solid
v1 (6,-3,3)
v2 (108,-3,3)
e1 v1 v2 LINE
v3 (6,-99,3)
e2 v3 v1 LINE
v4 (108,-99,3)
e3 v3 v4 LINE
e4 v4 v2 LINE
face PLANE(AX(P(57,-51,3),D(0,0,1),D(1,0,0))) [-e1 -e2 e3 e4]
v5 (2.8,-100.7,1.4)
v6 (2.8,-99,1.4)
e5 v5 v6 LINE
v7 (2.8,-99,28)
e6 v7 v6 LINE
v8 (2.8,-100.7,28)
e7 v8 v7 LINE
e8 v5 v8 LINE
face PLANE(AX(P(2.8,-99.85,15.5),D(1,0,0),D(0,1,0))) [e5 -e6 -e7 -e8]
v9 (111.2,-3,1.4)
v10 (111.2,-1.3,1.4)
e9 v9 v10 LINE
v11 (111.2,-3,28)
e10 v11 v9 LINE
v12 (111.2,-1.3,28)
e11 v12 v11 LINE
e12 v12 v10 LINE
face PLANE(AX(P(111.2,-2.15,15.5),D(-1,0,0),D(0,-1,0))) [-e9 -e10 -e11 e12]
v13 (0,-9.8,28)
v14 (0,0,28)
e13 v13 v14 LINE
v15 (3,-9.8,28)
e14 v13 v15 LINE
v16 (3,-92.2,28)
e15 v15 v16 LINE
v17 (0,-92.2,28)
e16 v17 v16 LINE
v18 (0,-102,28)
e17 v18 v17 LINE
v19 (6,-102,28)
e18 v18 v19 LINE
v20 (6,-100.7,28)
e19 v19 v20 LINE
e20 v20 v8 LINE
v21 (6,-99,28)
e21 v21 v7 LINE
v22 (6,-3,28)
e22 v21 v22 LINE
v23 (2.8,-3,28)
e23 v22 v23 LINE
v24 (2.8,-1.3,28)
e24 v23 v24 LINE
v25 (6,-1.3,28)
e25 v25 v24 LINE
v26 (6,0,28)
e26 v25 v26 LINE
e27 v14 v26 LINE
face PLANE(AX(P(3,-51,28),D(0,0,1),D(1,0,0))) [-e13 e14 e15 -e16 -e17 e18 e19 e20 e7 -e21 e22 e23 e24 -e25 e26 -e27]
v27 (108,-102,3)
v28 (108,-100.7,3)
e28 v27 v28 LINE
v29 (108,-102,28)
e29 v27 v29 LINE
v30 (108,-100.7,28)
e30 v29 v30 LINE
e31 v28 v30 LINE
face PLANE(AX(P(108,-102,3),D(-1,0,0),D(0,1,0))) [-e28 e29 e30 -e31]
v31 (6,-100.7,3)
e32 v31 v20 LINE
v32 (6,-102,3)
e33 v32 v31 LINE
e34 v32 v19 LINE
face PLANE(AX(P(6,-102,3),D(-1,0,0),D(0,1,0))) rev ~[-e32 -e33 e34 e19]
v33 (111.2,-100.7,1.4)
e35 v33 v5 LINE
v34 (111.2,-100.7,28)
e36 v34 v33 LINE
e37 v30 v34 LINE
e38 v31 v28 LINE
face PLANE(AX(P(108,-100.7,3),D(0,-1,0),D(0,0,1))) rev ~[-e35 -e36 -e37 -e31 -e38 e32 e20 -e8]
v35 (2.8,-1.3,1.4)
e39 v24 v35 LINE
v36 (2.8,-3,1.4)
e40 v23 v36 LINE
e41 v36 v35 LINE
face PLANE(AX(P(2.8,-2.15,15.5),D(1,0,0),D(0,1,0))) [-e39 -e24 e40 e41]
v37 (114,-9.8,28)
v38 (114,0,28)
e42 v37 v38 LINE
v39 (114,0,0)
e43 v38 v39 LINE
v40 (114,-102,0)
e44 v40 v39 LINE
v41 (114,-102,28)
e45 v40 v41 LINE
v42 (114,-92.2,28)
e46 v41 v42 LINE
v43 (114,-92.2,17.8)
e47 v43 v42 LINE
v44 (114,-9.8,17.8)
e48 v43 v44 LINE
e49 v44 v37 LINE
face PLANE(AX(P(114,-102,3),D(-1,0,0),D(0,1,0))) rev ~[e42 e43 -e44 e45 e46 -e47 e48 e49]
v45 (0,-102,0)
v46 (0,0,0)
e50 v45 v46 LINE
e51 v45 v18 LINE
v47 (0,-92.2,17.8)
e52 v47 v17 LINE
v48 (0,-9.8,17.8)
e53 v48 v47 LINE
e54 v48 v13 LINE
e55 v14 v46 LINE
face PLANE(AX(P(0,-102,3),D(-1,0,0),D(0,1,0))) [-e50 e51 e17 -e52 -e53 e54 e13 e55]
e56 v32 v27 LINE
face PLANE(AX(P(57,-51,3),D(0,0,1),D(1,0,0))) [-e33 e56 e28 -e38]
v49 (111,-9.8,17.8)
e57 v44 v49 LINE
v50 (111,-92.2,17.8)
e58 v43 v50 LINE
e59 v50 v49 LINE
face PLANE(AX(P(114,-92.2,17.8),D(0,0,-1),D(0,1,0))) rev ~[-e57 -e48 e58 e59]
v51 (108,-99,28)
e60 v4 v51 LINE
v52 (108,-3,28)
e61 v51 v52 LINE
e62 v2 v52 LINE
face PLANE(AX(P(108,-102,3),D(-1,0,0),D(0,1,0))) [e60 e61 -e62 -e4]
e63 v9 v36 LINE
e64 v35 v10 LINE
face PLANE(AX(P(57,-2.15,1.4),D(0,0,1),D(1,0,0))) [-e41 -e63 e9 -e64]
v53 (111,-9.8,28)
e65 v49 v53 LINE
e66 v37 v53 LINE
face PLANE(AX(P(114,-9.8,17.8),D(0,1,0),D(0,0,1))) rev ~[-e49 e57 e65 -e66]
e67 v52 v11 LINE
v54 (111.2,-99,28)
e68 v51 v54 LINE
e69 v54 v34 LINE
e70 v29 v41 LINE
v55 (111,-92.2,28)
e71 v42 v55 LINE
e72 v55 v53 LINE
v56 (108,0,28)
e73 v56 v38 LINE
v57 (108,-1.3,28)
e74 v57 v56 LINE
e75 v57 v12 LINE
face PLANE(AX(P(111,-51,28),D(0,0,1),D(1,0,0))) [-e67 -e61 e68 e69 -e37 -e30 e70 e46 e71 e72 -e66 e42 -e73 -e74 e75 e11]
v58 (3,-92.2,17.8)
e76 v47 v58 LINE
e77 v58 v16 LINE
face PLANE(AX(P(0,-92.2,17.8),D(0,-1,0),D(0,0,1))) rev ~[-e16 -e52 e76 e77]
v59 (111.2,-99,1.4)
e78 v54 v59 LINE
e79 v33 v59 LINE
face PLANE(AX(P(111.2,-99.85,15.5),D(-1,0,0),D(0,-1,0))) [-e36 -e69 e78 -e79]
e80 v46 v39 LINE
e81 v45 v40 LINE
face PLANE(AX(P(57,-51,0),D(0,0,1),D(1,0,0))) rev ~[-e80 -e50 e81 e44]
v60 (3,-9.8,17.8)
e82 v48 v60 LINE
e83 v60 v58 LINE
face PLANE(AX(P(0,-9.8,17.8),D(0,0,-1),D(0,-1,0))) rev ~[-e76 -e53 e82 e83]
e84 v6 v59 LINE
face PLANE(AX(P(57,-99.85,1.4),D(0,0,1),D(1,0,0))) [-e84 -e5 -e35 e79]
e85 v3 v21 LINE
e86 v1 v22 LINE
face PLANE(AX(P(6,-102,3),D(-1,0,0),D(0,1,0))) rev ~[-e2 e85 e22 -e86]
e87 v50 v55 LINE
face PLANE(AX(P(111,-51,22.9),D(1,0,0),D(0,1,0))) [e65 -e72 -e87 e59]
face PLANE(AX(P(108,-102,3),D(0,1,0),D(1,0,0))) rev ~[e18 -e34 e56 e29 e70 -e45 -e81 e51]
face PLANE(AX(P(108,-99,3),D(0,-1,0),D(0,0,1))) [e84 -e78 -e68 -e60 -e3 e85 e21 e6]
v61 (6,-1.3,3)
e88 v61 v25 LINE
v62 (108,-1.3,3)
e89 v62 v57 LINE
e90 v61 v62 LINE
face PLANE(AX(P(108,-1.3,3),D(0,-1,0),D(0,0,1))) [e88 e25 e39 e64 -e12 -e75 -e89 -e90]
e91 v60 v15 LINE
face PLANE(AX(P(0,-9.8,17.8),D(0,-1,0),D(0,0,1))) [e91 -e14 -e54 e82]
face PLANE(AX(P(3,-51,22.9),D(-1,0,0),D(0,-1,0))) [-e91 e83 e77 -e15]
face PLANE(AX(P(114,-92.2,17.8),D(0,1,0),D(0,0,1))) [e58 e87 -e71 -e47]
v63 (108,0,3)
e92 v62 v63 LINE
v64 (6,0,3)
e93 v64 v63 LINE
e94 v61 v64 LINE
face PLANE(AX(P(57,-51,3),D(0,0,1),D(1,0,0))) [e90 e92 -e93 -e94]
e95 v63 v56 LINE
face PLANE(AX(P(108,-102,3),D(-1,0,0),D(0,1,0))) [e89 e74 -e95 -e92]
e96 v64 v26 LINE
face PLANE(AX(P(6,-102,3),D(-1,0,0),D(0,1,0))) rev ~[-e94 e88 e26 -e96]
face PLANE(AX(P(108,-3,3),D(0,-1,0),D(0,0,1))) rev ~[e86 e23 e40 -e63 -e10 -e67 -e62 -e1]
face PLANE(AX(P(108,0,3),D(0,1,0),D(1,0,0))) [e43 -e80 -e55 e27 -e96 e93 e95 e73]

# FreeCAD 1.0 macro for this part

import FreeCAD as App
import Part
import Sketcher

V = App.Vector


def add_polygon(sketch, points):
    """Adds a closed chain of lines whose ends are joined by coincident constraints."""
    first, n = sketch.GeometryCount, len(points)
    for a, b in zip(points, points[1:] + points[:1]):
        sketch.addGeometry(Part.LineSegment(App.Vector(*a, 0), App.Vector(*b, 0)), False)
    for i in range(n):
        sketch.addConstraint(Sketcher.Constraint("Coincident", first + i, 2, first + (i + 1) % n, 1))

doc = App.newDocument("Part")
body = doc.addObject("PartDesign::Body", "Body")

# Sketch on XY plane
sketch1 = body.newObject("Sketcher::SketchObject", "Sketch")
sketch1.AttachmentSupport = (doc.getObject("XY_Plane"), [""])
sketch1.MapMode = "FlatFace"
add_polygon(sketch1, [(0, 0), (0, -102), (114, -102), (114, 0)])  # lines 0-3
sketch1.addConstraint(Sketcher.Constraint("Vertical", 0))
sketch1.addConstraint(Sketcher.Constraint("Horizontal", 1))
sketch1.addConstraint(Sketcher.Constraint("Vertical", 2))
sketch1.addConstraint(Sketcher.Constraint("Horizontal", 3))
sketch1.addConstraint(Sketcher.Constraint("Coincident", 3, 2, -1, 1))
sketch1.addConstraint(Sketcher.Constraint("DistanceX", 1, 1, 1, 2, 114.0))
sketch1.addConstraint(Sketcher.Constraint("DistanceY", 0, 2, 0, 1, 102.0))
pad1 = body.newObject("PartDesign::Pad", "Pad")
pad1.Profile = sketch1
pad1.Length = 3

# Sketch on XY plane
sketch2 = body.newObject("Sketcher::SketchObject", "Sketch001")
sketch2.AttachmentSupport = (doc.getObject("XY_Plane"), [""])
sketch2.MapMode = "FlatFace"
sketch2.AttachmentOffset = App.Placement(V(0, 0, 3), App.Rotation())
add_polygon(sketch2, [(0, 0), (0, -102), (6, -102), (6, 0)])  # lines 0-3
sketch2.addConstraint(Sketcher.Constraint("Vertical", 0))
sketch2.addConstraint(Sketcher.Constraint("Horizontal", 1))
sketch2.addConstraint(Sketcher.Constraint("Vertical", 2))
sketch2.addConstraint(Sketcher.Constraint("Horizontal", 3))
sketch2.addConstraint(Sketcher.Constraint("Coincident", 3, 2, -1, 1))
sketch2.addConstraint(Sketcher.Constraint("DistanceX", 1, 1, 1, 2, 6.0))
sketch2.addConstraint(Sketcher.Constraint("DistanceY", 0, 2, 0, 1, 102.0))
pad2 = body.newObject("PartDesign::Pad", "Pad001")
pad2.Profile = sketch2
pad2.Length = 25

# Sketch on XY plane
sketch3 = body.newObject("Sketcher::SketchObject", "Sketch002")
sketch3.AttachmentSupport = (doc.getObject("XY_Plane"), [""])
sketch3.MapMode = "FlatFace"
sketch3.AttachmentOffset = App.Placement(V(0, 0, 3), App.Rotation())
add_polygon(sketch3, [(108, 0), (108, -102), (114, -102), (114, 0)])  # lines 0-3
sketch3.addConstraint(Sketcher.Constraint("Vertical", 0))
sketch3.addConstraint(Sketcher.Constraint("Horizontal", 1))
sketch3.addConstraint(Sketcher.Constraint("Vertical", 2))
sketch3.addConstraint(Sketcher.Constraint("Horizontal", 3))
sketch3.addConstraint(Sketcher.Constraint("PointOnObject", 2, 2, -1))
sketch3.addConstraint(Sketcher.Constraint("DistanceX", 1, 1, 1, 2, 6.0))
sketch3.addConstraint(Sketcher.Constraint("DistanceY", 0, 2, 0, 1, 102.0))
sketch3.addConstraint(Sketcher.Constraint("DistanceX", -1, 1, 0, 2, 108.0))
pad3 = body.newObject("PartDesign::Pad", "Pad002")
pad3.Profile = sketch3
pad3.Length = 25

# Sketch on YZ plane
sketch4 = body.newObject("Sketcher::SketchObject", "Sketch003")
sketch4.AttachmentSupport = (doc.getObject("YZ_Plane"), [""])
sketch4.MapMode = "FlatFace"
sketch4.AttachmentOffset = App.Placement(V(0, 0, 114), App.Rotation())
add_polygon(sketch4, [(-92, 28), (-92, 18), (-10, 18), (-10, 28)])  # lines 0-3
sketch4.addConstraint(Sketcher.Constraint("Vertical", 0))
sketch4.addConstraint(Sketcher.Constraint("Horizontal", 1))
sketch4.addConstraint(Sketcher.Constraint("Vertical", 2))
sketch4.addConstraint(Sketcher.Constraint("Horizontal", 3))
sketch4.addConstraint(Sketcher.Constraint("DistanceX", 1, 1, 1, 2, 82.4))
sketch4.addConstraint(Sketcher.Constraint("DistanceY", 0, 2, 0, 1, 10.2))
sketch4.addConstraint(Sketcher.Constraint("DistanceY", -1, 1, 2, 2, 28.0))
sketch4.addConstraint(Sketcher.Constraint("DistanceX", 0, 2, -1, 1, 92.2))
pocket1 = body.newObject("PartDesign::Pocket", "Pocket")
pocket1.Profile = sketch4
pocket1.Length = 3

# Sketch on YZ plane
sketch5 = body.newObject("Sketcher::SketchObject", "Sketch004")
sketch5.AttachmentSupport = (doc.getObject("YZ_Plane"), [""])
sketch5.MapMode = "FlatFace"
add_polygon(sketch5, [(-10, 28), (-10, 18), (-92, 18), (-92, 28)])  # lines 0-3
sketch5.addConstraint(Sketcher.Constraint("Vertical", 0))
sketch5.addConstraint(Sketcher.Constraint("Horizontal", 1))
sketch5.addConstraint(Sketcher.Constraint("Vertical", 2))
sketch5.addConstraint(Sketcher.Constraint("Horizontal", 3))
sketch5.addConstraint(Sketcher.Constraint("DistanceX", 1, 2, 1, 1, 82.4))
sketch5.addConstraint(Sketcher.Constraint("DistanceY", 0, 2, 0, 1, 10.2))
sketch5.addConstraint(Sketcher.Constraint("DistanceY", -1, 1, 2, 2, 28.0))
sketch5.addConstraint(Sketcher.Constraint("DistanceX", 0, 2, -1, 1, 9.8))
pocket2 = body.newObject("PartDesign::Pocket", "Pocket001")
pocket2.Profile = sketch5
pocket2.Length = 3
pocket2.Reversed = True

# Sketch on YZ plane
sketch6 = body.newObject("Sketcher::SketchObject", "Sketch005")
sketch6.AttachmentSupport = (doc.getObject("YZ_Plane"), [""])
sketch6.MapMode = "FlatFace"
sketch6.AttachmentOffset = App.Placement(V(0, 0, 6), App.Rotation())
add_polygon(sketch6, [(-100.7, 28), (-100.7, 3), (-99, 3), (-99, 28)])  # lines 0-3
sketch6.addConstraint(Sketcher.Constraint("Vertical", 0))
sketch6.addConstraint(Sketcher.Constraint("Horizontal", 1))
sketch6.addConstraint(Sketcher.Constraint("Vertical", 2))
sketch6.addConstraint(Sketcher.Constraint("Horizontal", 3))
sketch6.addConstraint(Sketcher.Constraint("DistanceY", 0, 2, 0, 1, 25.0))
sketch6.addConstraint(Sketcher.Constraint("DistanceX", 1, 1, 1, 2, 1.7))
sketch6.addConstraint(Sketcher.Constraint("DistanceY", -1, 1, 0, 2, 3.0))
sketch6.addConstraint(Sketcher.Constraint("DistanceX", 1, 2, -1, 1, 99.0))
pocket3 = body.newObject("PartDesign::Pocket", "Pocket002")
pocket3.Profile = sketch6
pocket3.Length = 3.2

# Sketch on XY plane
sketch7 = body.newObject("Sketcher::SketchObject", "Sketch006")
sketch7.AttachmentSupport = (doc.getObject("XY_Plane"), [""])
sketch7.MapMode = "FlatFace"
sketch7.AttachmentOffset = App.Placement(V(0, 0, 3), App.Rotation())
add_polygon(sketch7, [(6, -99), (6, -100.7), (108, -100.7), (108, -99)])  # lines 0-3
sketch7.addConstraint(Sketcher.Constraint("Vertical", 0))
sketch7.addConstraint(Sketcher.Constraint("Horizontal", 1))
sketch7.addConstraint(Sketcher.Constraint("Vertical", 2))
sketch7.addConstraint(Sketcher.Constraint("Horizontal", 3))
sketch7.addConstraint(Sketcher.Constraint("DistanceX", 1, 1, 1, 2, 102.0))
sketch7.addConstraint(Sketcher.Constraint("DistanceY", 0, 2, 0, 1, 1.7))
sketch7.addConstraint(Sketcher.Constraint("DistanceX", -1, 1, 0, 2, 6.0))
sketch7.addConstraint(Sketcher.Constraint("DistanceY", 2, 2, -1, 1, 99.0))
pocket4 = body.newObject("PartDesign::Pocket", "Pocket003")
pocket4.Profile = sketch7
pocket4.Length = 1.6

# Sketch on XY plane
sketch8 = body.newObject("Sketcher::SketchObject", "Sketch007")
sketch8.AttachmentSupport = (doc.getObject("XY_Plane"), [""])
sketch8.MapMode = "FlatFace"
sketch8.AttachmentOffset = App.Placement(V(0, 0, 3), App.Rotation())
add_polygon(sketch8, [(2.8, -99), (2.8, -100.7), (6, -100.7), (6, -99)])  # lines 0-3
sketch8.addConstraint(Sketcher.Constraint("Vertical", 0))
sketch8.addConstraint(Sketcher.Constraint("Horizontal", 1))
sketch8.addConstraint(Sketcher.Constraint("Vertical", 2))
sketch8.addConstraint(Sketcher.Constraint("Horizontal", 3))
sketch8.addConstraint(Sketcher.Constraint("DistanceX", 1, 1, 1, 2, 3.2))
sketch8.addConstraint(Sketcher.Constraint("DistanceY", 0, 2, 0, 1, 1.7))
sketch8.addConstraint(Sketcher.Constraint("DistanceX", -1, 1, 1, 2, 6.0))
sketch8.addConstraint(Sketcher.Constraint("DistanceY", 2, 2, -1, 1, 99.0))
pocket5 = body.newObject("PartDesign::Pocket", "Pocket004")
pocket5.Profile = sketch8
pocket5.Length = 1.6

# Sketch on YZ plane
sketch9 = body.newObject("Sketcher::SketchObject", "Sketch008")
sketch9.AttachmentSupport = (doc.getObject("YZ_Plane"), [""])
sketch9.MapMode = "FlatFace"
sketch9.AttachmentOffset = App.Placement(V(0, 0, 108), App.Rotation())
add_polygon(sketch9, [(-99, 28), (-99, 3), (-100.7, 3), (-100.7, 28)])  # lines 0-3
sketch9.addConstraint(Sketcher.Constraint("Vertical", 0))
sketch9.addConstraint(Sketcher.Constraint("Horizontal", 1))
sketch9.addConstraint(Sketcher.Constraint("Vertical", 2))
sketch9.addConstraint(Sketcher.Constraint("Horizontal", 3))
sketch9.addConstraint(Sketcher.Constraint("DistanceY", 0, 2, 0, 1, 25.0))
sketch9.addConstraint(Sketcher.Constraint("DistanceX", 1, 2, 1, 1, 1.7))
sketch9.addConstraint(Sketcher.Constraint("DistanceX", 0, 2, -1, 1, 99.0))
sketch9.addConstraint(Sketcher.Constraint("DistanceY", -1, 1, 0, 2, 3.0))
pocket6 = body.newObject("PartDesign::Pocket", "Pocket005")
pocket6.Profile = sketch9
pocket6.Length = 3.2
pocket6.Reversed = True

# Sketch on XY plane
sketch10 = body.newObject("Sketcher::SketchObject", "Sketch009")
sketch10.AttachmentSupport = (doc.getObject("XY_Plane"), [""])
sketch10.MapMode = "FlatFace"
sketch10.AttachmentOffset = App.Placement(V(0, 0, 3), App.Rotation())
add_polygon(sketch10, [(108, -99), (108, -100.7), (111.2, -100.7), (111.2, -99)])  # lines 0-3
sketch10.addConstraint(Sketcher.Constraint("Vertical", 0))
sketch10.addConstraint(Sketcher.Constraint("Horizontal", 1))
sketch10.addConstraint(Sketcher.Constraint("Vertical", 2))
sketch10.addConstraint(Sketcher.Constraint("Horizontal", 3))
sketch10.addConstraint(Sketcher.Constraint("DistanceX", 1, 1, 1, 2, 3.2))
sketch10.addConstraint(Sketcher.Constraint("DistanceY", 0, 2, 0, 1, 1.7))
sketch10.addConstraint(Sketcher.Constraint("DistanceX", -1, 1, 0, 2, 108.0))
sketch10.addConstraint(Sketcher.Constraint("DistanceY", 2, 2, -1, 1, 99.0))
pocket7 = body.newObject("PartDesign::Pocket", "Pocket006")
pocket7.Profile = sketch10
pocket7.Length = 1.6

# Sketch on YZ plane
sketch11 = body.newObject("Sketcher::SketchObject", "Sketch010")
sketch11.AttachmentSupport = (doc.getObject("YZ_Plane"), [""])
sketch11.MapMode = "FlatFace"
sketch11.AttachmentOffset = App.Placement(V(0, 0, 6), App.Rotation())
add_polygon(sketch11, [(-3, 28), (-3, 3), (-1.3, 3), (-1.3, 28)])  # lines 0-3
sketch11.addConstraint(Sketcher.Constraint("Vertical", 0))
sketch11.addConstraint(Sketcher.Constraint("Horizontal", 1))
sketch11.addConstraint(Sketcher.Constraint("Vertical", 2))
sketch11.addConstraint(Sketcher.Constraint("Horizontal", 3))
sketch11.addConstraint(Sketcher.Constraint("DistanceY", 0, 2, 0, 1, 25.0))
sketch11.addConstraint(Sketcher.Constraint("DistanceX", 1, 1, 1, 2, 1.7))
sketch11.addConstraint(Sketcher.Constraint("DistanceX", 0, 2, -1, 1, 3.0))
sketch11.addConstraint(Sketcher.Constraint("DistanceY", -1, 1, 0, 2, 3.0))
pocket8 = body.newObject("PartDesign::Pocket", "Pocket007")
pocket8.Profile = sketch11
pocket8.Length = 3.2

# Sketch on XY plane
sketch12 = body.newObject("Sketcher::SketchObject", "Sketch011")
sketch12.AttachmentSupport = (doc.getObject("XY_Plane"), [""])
sketch12.MapMode = "FlatFace"
sketch12.AttachmentOffset = App.Placement(V(0, 0, 3), App.Rotation())
add_polygon(sketch12, [(6, -1.3), (6, -3), (108, -3), (108, -1.3)])  # lines 0-3
sketch12.addConstraint(Sketcher.Constraint("Vertical", 0))
sketch12.addConstraint(Sketcher.Constraint("Horizontal", 1))
sketch12.addConstraint(Sketcher.Constraint("Vertical", 2))
sketch12.addConstraint(Sketcher.Constraint("Horizontal", 3))
sketch12.addConstraint(Sketcher.Constraint("DistanceX", 1, 1, 1, 2, 102.0))
sketch12.addConstraint(Sketcher.Constraint("DistanceY", 0, 2, 0, 1, 1.7))
sketch12.addConstraint(Sketcher.Constraint("DistanceX", -1, 1, 0, 2, 6.0))
sketch12.addConstraint(Sketcher.Constraint("DistanceY", 0, 2, -1, 1, 3.0))
pocket9 = body.newObject("PartDesign::Pocket", "Pocket008")
pocket9.Profile = sketch12
pocket9.Length = 1.6

# Sketch on XY plane
sketch13 = body.newObject("Sketcher::SketchObject", "Sketch012")
sketch13.AttachmentSupport = (doc.getObject("XY_Plane"), [""])
sketch13.MapMode = "FlatFace"
sketch13.AttachmentOffset = App.Placement(V(0, 0, 3), App.Rotation())
add_polygon(sketch13, [(2.8, -1.3), (2.8, -3), (6, -3), (6, -1.3)])  # lines 0-3
sketch13.addConstraint(Sketcher.Constraint("Vertical", 0))
sketch13.addConstraint(Sketcher.Constraint("Horizontal", 1))
sketch13.addConstraint(Sketcher.Constraint("Vertical", 2))
sketch13.addConstraint(Sketcher.Constraint("Horizontal", 3))
sketch13.addConstraint(Sketcher.Constraint("DistanceX", 1, 1, 1, 2, 3.2))
sketch13.addConstraint(Sketcher.Constraint("DistanceY", 0, 2, 0, 1, 1.7))
sketch13.addConstraint(Sketcher.Constraint("DistanceY", 0, 2, -1, 1, 3.0))
sketch13.addConstraint(Sketcher.Constraint("DistanceX", -1, 1, 1, 2, 6.0))
pocket10 = body.newObject("PartDesign::Pocket", "Pocket009")
pocket10.Profile = sketch13
pocket10.Length = 1.6

# Sketch on YZ plane
sketch14 = body.newObject("Sketcher::SketchObject", "Sketch013")
sketch14.AttachmentSupport = (doc.getObject("YZ_Plane"), [""])
sketch14.MapMode = "FlatFace"
sketch14.AttachmentOffset = App.Placement(V(0, 0, 108), App.Rotation())
add_polygon(sketch14, [(-1.3, 28), (-1.3, 3), (-3, 3), (-3, 28)])  # lines 0-3
sketch14.addConstraint(Sketcher.Constraint("Vertical", 0))
sketch14.addConstraint(Sketcher.Constraint("Horizontal", 1))
sketch14.addConstraint(Sketcher.Constraint("Vertical", 2))
sketch14.addConstraint(Sketcher.Constraint("Horizontal", 3))
sketch14.addConstraint(Sketcher.Constraint("DistanceY", 0, 2, 0, 1, 25.0))
sketch14.addConstraint(Sketcher.Constraint("DistanceX", 1, 2, 1, 1, 1.7))
sketch14.addConstraint(Sketcher.Constraint("DistanceY", -1, 1, 0, 2, 3.0))
sketch14.addConstraint(Sketcher.Constraint("DistanceX", 1, 2, -1, 1, 3.0))
pocket11 = body.newObject("PartDesign::Pocket", "Pocket010")
pocket11.Profile = sketch14
pocket11.Length = 3.2
pocket11.Reversed = True

# Sketch on XY plane
sketch15 = body.newObject("Sketcher::SketchObject", "Sketch014")
sketch15.AttachmentSupport = (doc.getObject("XY_Plane"), [""])
sketch15.MapMode = "FlatFace"
sketch15.AttachmentOffset = App.Placement(V(0, 0, 3), App.Rotation())
add_polygon(sketch15, [(108, -1.3), (108, -3), (111.2, -3), (111.2, -1.3)])  # lines 0-3
sketch15.addConstraint(Sketcher.Constraint("Vertical", 0))
sketch15.addConstraint(Sketcher.Constraint("Horizontal", 1))
sketch15.addConstraint(Sketcher.Constraint("Vertical", 2))
sketch15.addConstraint(Sketcher.Constraint("Horizontal", 3))
sketch15.addConstraint(Sketcher.Constraint("DistanceX", 1, 1, 1, 2, 3.2))
sketch15.addConstraint(Sketcher.Constraint("DistanceY", 0, 2, 0, 1, 1.7))
sketch15.addConstraint(Sketcher.Constraint("DistanceX", -1, 1, 0, 2, 108.0))
sketch15.addConstraint(Sketcher.Constraint("DistanceY", 0, 2, -1, 1, 3.0))
pocket12 = body.newObject("PartDesign::Pocket", "Pocket011")
pocket12.Profile = sketch15
pocket12.Length = 1.6

doc.recompute()
